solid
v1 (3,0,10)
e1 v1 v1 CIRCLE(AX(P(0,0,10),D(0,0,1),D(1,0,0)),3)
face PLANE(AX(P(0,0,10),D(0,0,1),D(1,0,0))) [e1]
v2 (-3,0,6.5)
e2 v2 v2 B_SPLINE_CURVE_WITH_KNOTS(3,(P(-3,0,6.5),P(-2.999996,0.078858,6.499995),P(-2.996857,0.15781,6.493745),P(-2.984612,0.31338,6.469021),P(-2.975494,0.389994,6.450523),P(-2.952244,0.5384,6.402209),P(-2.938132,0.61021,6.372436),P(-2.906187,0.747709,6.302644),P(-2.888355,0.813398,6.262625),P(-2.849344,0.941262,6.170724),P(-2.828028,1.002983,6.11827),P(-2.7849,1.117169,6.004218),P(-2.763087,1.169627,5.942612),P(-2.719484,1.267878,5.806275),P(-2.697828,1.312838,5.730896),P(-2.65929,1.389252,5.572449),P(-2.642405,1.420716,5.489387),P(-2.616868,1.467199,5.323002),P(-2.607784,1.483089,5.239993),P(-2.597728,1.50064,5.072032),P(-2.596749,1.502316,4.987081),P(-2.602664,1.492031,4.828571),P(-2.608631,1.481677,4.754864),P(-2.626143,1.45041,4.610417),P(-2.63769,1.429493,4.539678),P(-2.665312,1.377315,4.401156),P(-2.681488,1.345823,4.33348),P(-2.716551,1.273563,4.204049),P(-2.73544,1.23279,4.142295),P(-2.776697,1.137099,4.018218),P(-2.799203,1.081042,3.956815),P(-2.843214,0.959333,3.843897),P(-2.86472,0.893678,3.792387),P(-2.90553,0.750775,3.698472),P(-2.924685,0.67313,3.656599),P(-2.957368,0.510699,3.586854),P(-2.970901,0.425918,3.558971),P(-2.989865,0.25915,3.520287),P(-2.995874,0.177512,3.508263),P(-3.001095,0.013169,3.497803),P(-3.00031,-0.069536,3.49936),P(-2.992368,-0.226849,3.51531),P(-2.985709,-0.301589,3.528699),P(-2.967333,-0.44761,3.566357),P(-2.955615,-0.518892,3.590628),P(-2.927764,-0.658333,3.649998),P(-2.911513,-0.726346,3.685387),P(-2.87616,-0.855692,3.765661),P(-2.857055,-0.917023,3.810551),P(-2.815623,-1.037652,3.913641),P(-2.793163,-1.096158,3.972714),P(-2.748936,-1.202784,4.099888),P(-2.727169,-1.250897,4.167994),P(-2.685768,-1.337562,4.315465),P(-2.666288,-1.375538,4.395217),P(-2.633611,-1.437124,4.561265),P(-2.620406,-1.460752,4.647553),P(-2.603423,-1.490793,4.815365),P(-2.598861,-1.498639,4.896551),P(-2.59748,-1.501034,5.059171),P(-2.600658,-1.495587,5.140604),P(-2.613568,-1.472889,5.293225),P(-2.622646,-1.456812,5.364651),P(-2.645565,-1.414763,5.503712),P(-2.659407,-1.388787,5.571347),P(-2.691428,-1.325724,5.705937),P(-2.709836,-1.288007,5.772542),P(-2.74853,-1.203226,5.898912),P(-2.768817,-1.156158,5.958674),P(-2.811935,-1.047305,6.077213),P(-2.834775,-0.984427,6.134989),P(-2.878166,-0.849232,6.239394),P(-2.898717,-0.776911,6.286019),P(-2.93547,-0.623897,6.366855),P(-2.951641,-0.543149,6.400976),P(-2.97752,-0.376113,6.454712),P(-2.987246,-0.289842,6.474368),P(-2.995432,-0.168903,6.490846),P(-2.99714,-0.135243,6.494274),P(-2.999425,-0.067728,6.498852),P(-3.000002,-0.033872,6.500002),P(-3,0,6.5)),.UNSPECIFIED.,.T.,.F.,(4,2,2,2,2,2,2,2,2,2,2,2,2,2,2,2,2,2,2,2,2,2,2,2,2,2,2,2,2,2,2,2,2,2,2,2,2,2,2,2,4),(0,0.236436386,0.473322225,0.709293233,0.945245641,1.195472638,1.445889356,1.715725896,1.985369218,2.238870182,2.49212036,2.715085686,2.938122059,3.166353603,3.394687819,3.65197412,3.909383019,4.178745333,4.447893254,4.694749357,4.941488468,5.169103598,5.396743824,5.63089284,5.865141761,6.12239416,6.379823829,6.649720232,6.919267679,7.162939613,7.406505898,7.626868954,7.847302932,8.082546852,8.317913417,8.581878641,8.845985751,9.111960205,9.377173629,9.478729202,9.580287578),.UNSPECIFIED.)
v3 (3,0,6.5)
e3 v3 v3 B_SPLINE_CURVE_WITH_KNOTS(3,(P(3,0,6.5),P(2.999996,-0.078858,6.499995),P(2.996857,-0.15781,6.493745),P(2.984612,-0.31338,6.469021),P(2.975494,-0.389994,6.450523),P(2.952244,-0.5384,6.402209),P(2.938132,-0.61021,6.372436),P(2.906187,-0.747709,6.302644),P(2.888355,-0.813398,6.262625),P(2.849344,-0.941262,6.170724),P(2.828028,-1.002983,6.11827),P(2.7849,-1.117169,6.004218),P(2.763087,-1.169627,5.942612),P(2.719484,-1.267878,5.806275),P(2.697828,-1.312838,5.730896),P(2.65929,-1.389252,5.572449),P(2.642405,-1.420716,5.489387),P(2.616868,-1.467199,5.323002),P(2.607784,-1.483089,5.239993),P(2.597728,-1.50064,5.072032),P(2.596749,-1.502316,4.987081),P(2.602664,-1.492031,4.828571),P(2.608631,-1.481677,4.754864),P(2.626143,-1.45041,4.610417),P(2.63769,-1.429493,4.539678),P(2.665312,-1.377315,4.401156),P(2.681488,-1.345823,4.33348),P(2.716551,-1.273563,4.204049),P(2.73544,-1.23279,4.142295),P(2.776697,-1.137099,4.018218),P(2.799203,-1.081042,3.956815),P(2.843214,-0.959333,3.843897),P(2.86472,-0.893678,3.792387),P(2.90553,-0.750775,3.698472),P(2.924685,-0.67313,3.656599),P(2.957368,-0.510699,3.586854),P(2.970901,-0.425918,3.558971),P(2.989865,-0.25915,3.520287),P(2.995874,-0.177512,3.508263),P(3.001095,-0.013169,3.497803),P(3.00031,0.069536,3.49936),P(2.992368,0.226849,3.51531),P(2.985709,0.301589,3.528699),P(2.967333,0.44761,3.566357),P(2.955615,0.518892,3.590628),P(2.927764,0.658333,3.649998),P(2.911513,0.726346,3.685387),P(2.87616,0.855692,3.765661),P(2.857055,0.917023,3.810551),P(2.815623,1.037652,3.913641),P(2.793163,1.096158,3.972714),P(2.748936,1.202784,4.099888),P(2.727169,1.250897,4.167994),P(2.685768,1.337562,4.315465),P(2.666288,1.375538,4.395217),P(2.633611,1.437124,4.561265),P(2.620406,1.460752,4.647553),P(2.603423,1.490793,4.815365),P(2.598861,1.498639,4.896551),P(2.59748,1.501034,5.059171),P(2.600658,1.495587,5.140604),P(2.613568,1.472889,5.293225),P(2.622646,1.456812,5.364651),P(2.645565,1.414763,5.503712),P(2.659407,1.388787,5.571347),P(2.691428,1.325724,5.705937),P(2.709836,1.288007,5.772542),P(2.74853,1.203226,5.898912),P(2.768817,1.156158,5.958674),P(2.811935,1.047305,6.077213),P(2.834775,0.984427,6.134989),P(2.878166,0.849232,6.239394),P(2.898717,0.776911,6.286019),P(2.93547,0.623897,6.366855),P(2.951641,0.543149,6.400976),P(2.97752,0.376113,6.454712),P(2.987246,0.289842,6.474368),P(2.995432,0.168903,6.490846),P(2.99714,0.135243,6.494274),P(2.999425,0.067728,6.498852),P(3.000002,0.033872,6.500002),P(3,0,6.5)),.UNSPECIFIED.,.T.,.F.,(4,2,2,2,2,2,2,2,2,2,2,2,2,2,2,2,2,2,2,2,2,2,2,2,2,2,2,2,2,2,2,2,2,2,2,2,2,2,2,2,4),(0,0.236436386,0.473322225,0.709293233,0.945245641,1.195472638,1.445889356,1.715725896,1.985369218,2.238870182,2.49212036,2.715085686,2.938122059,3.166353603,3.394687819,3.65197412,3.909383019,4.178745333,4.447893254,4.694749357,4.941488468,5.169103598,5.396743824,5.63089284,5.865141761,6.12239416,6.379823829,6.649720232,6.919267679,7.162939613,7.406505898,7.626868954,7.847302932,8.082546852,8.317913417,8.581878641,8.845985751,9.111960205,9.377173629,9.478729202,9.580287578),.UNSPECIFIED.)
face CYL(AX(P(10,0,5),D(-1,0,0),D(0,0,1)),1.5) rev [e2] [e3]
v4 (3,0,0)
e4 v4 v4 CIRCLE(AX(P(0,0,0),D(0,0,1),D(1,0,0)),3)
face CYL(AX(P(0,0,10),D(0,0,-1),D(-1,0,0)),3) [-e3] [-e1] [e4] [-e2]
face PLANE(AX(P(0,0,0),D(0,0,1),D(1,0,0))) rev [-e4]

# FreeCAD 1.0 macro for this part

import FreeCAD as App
import Part
import Sketcher

V = App.Vector
Q = App.Units.Quantity

doc = App.newDocument("Part")
body = doc.addObject("PartDesign::Body", "Body")

sketch1 = doc.addObject("Sketcher::SketchObject", "Sketch")
body.addObject(sketch1)
sketch1.AttachmentSupport = (doc.XY_Plane, [""])
sketch1.MapMode = "FlatFace"
sketch1.addGeometry(Part.Circle(V(0, 0, 0), V(0, 0, 1), 3), False)
sketch1.addConstraint(Sketcher.Constraint("Coincident", 0, 3, -1, 1))
sketch1.addConstraint(Sketcher.Constraint("Diameter", 0, Q("6 mm")))
pad1 = doc.addObject("PartDesign::Pad", "Pad")
body.addObject(pad1)
pad1.Profile = sketch1
pad1.Length = 10

sketch2 = doc.addObject("Sketcher::SketchObject", "Sketch001")
body.addObject(sketch2)
sketch2.AttachmentSupport = (doc.YZ_Plane, [""])
sketch2.MapMode = "FlatFace"
sketch2.addGeometry(Part.Circle(V(0, 5, 0), V(0, 0, 1), 1.5), False)
sketch2.addConstraint(Sketcher.Constraint("PointOnObject", 0, 3, -2))
sketch2.addConstraint(Sketcher.Constraint("Diameter", 0, Q("3 mm")))
sketch2.addConstraint(Sketcher.Constraint("DistanceY", -1, 1, 0, 3, Q("5 mm")))
pocket1 = doc.addObject("PartDesign::Pocket", "Pocket")
body.addObject(pocket1)
pocket1.Profile = sketch2
pocket1.Type = "ThroughAll"
pocket1.Midplane = True

doc.recompute()
